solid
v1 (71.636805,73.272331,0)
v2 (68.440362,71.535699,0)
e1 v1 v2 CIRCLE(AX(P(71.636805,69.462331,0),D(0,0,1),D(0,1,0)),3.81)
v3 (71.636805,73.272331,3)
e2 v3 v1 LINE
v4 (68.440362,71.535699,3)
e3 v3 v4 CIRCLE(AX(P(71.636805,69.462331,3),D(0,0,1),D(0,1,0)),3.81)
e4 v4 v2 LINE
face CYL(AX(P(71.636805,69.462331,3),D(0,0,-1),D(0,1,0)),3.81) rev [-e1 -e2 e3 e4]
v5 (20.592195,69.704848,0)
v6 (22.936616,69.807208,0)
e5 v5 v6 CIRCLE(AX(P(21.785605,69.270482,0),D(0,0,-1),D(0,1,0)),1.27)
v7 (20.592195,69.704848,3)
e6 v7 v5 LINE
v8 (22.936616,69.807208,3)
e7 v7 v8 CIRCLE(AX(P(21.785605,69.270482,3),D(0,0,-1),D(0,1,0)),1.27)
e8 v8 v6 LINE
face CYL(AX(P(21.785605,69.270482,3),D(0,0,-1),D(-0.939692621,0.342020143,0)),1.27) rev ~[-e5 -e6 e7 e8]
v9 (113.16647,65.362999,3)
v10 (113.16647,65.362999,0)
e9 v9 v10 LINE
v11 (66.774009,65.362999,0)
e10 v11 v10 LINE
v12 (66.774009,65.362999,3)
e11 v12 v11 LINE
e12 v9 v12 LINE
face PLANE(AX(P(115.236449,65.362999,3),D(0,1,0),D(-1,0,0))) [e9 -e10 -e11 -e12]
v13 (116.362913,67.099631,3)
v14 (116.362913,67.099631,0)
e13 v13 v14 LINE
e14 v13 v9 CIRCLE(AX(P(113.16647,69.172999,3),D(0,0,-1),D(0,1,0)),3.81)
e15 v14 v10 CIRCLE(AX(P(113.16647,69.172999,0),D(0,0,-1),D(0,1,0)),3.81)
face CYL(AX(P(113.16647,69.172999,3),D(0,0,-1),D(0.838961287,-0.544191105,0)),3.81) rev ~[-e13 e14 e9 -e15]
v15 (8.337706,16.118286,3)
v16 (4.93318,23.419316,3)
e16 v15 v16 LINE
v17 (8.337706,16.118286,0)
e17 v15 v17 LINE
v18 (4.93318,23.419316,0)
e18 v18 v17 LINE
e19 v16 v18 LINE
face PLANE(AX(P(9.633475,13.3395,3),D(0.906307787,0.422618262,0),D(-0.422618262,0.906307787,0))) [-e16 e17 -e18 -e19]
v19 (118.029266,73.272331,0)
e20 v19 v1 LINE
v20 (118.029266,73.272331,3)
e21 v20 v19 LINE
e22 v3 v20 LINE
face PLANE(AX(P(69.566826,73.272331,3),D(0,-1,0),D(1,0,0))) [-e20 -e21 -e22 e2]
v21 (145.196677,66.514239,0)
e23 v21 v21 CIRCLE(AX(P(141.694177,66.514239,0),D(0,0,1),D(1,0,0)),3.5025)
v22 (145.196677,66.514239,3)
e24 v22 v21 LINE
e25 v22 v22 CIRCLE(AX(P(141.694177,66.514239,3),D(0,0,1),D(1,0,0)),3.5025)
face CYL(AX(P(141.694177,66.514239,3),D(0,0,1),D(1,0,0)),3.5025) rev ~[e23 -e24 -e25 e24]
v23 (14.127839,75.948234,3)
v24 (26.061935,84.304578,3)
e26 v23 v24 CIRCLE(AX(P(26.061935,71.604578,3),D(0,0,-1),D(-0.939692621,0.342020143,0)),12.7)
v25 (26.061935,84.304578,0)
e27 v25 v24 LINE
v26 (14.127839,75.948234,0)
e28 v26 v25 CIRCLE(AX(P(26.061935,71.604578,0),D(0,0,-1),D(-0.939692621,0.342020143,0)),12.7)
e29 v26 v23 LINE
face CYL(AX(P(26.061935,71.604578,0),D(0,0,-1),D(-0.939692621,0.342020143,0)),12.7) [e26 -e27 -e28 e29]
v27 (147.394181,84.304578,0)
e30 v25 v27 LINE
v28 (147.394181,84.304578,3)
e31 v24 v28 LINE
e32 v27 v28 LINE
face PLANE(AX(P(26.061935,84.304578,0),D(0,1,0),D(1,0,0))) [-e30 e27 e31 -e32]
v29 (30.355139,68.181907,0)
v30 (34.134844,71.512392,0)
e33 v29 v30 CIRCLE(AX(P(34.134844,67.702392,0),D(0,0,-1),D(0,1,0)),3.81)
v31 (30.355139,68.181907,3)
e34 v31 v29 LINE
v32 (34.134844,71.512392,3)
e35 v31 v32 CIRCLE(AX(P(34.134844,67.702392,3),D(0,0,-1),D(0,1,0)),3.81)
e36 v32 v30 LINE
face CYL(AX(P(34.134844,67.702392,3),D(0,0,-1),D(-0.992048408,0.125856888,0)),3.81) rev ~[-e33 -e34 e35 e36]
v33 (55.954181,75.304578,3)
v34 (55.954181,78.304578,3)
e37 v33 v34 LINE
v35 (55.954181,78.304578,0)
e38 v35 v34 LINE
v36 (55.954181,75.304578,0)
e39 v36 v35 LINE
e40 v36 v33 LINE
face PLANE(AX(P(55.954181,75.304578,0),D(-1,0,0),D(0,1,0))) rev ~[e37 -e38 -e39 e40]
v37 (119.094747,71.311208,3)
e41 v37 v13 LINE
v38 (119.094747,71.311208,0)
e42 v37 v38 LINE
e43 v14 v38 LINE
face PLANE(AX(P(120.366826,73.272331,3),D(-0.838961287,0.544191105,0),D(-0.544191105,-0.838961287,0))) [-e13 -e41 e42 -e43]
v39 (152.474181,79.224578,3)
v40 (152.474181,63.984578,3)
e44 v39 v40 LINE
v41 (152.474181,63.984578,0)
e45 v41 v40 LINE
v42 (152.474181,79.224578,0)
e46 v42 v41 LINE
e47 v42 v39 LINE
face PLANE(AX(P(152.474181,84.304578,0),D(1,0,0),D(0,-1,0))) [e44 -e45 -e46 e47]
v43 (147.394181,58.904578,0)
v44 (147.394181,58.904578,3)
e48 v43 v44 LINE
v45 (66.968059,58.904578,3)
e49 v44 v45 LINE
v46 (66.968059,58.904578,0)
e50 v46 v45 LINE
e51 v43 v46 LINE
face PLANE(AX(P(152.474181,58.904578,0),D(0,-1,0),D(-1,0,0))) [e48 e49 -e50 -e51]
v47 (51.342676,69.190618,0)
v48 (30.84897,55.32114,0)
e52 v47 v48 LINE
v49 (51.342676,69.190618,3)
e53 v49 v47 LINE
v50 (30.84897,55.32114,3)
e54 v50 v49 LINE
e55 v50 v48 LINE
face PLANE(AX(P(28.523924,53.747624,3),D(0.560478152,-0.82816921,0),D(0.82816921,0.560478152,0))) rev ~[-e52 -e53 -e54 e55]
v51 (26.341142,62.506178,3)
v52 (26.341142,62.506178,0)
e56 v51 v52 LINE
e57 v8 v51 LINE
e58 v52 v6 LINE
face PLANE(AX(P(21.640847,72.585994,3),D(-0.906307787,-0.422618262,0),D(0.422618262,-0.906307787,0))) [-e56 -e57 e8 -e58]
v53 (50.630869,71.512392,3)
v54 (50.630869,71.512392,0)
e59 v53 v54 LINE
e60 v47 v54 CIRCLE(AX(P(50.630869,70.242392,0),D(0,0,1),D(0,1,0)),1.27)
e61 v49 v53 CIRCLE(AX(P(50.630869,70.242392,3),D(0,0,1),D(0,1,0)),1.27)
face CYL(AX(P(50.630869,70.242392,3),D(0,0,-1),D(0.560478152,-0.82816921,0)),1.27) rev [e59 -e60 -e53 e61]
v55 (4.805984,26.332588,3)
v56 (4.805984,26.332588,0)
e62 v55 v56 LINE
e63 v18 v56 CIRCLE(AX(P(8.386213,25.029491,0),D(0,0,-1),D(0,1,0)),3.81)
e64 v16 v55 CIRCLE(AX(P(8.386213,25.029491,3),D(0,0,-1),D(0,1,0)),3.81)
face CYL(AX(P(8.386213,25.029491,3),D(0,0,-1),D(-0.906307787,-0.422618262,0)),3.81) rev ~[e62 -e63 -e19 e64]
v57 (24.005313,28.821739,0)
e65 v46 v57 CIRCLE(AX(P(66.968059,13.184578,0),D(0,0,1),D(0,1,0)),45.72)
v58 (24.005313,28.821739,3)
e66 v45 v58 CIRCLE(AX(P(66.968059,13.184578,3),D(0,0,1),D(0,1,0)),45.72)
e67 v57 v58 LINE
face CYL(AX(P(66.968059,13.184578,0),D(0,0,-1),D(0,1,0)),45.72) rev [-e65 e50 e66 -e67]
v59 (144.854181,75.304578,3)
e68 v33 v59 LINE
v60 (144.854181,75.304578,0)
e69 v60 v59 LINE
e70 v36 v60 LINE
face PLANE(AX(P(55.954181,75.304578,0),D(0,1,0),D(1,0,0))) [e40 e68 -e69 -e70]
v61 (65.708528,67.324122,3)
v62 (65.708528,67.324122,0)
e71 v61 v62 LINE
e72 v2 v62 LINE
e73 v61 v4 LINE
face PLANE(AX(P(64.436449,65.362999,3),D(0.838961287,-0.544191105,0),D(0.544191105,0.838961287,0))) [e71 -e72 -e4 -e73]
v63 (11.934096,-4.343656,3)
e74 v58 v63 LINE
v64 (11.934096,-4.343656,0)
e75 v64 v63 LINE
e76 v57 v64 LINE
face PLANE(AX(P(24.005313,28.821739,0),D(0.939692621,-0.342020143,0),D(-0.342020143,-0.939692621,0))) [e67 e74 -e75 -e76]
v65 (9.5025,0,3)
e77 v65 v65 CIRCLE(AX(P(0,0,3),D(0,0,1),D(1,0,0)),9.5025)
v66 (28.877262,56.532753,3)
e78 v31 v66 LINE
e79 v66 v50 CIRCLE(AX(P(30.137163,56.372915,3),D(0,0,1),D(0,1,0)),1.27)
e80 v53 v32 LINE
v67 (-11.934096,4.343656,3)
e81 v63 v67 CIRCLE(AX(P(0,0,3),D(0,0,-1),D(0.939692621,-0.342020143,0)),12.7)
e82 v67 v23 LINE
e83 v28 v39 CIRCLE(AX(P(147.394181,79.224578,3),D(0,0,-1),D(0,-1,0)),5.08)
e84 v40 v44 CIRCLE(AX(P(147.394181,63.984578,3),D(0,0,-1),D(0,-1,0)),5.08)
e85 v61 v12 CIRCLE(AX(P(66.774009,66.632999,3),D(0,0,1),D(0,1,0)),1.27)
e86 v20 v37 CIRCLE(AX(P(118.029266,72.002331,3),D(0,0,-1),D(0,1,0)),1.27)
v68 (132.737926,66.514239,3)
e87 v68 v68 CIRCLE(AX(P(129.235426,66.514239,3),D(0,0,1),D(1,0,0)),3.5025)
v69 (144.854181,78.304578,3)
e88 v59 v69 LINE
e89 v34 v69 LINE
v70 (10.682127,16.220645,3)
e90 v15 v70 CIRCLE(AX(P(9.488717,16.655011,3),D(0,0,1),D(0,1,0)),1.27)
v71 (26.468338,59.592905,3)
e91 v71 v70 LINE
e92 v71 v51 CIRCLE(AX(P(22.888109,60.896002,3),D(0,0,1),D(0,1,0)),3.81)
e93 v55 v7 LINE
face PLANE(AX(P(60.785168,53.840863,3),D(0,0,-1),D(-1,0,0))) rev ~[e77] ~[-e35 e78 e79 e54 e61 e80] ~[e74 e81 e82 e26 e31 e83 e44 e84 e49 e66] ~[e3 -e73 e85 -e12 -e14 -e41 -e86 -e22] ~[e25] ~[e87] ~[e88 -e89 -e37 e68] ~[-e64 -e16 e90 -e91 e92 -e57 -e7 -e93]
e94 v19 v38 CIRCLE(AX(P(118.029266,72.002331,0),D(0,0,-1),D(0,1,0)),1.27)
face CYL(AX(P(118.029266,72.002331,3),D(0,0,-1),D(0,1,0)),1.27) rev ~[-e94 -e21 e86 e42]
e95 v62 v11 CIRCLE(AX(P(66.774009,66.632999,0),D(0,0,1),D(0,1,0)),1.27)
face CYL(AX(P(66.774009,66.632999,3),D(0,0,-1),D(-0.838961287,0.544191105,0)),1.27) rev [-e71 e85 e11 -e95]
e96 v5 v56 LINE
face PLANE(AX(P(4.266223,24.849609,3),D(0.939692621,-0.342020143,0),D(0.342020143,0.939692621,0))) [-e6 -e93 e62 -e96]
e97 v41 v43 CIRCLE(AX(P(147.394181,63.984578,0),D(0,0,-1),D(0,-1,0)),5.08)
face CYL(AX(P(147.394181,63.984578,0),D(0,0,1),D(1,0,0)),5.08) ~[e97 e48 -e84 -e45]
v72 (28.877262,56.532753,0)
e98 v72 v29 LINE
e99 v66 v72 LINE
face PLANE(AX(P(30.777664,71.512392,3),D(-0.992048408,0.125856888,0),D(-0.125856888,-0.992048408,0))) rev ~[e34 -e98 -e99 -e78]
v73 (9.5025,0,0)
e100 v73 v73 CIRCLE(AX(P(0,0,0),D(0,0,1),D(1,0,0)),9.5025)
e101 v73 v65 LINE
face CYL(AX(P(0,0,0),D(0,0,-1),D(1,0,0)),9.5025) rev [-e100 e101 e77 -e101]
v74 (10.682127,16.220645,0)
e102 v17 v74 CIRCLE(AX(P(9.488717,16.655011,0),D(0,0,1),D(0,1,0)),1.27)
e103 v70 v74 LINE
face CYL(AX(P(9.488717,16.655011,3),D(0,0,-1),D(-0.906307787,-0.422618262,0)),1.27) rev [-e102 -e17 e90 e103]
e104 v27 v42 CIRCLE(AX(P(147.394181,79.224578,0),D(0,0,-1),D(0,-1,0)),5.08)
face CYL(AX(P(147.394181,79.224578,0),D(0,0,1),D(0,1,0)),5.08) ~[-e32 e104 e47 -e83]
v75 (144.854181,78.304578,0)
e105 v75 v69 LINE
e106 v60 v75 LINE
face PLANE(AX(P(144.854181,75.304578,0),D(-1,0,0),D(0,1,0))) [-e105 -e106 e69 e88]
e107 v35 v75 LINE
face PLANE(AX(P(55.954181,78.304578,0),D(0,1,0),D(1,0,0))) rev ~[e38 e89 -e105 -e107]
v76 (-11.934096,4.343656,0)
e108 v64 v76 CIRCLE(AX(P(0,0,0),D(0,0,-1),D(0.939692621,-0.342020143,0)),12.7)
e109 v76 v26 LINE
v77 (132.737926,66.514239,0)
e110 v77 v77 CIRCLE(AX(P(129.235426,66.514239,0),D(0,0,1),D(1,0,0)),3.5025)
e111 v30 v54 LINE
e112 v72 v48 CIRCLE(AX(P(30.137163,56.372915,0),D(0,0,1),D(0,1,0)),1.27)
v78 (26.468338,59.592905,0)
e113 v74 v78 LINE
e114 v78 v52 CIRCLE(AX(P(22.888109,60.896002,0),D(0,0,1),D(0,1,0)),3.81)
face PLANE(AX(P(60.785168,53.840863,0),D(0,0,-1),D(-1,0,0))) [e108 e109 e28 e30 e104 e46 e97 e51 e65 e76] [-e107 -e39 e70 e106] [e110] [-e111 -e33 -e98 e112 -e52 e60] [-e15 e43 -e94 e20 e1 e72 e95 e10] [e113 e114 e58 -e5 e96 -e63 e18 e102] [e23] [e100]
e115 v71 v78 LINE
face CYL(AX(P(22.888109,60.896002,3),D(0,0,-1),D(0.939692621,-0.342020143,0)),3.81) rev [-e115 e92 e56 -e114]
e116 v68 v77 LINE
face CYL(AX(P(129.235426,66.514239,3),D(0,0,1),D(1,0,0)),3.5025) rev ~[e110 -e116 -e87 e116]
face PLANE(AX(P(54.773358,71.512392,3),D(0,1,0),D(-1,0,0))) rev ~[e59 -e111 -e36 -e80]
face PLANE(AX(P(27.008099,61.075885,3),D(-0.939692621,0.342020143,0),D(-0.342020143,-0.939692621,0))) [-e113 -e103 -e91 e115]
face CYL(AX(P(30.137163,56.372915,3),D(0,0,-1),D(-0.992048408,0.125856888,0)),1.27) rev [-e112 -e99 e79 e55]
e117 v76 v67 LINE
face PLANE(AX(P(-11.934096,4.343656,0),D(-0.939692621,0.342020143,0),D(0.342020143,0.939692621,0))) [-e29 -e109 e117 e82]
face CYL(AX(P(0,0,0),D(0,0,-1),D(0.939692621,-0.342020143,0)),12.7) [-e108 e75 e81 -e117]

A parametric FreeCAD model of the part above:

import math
import FreeCAD as App
import Part
import Sketcher
Q = App.Units.Quantity


def edges_at(feature, points):
    """Names of the edges that pass closest to the given points."""
    edges = feature.Shape.Edges
    near = lambda p: min(range(len(edges)), key=lambda i: edges[i].distToShape(Part.Vertex(*p))[0])
    return sorted({f"Edge{near(p) + 1}" for p in points})


def add_polygon(sketch, points):
    """Adds a closed chain of lines whose ends are joined by coincident constraints."""
    first, n = sketch.GeometryCount, len(points)
    for a, b in zip(points, points[1:] + points[:1]):
        sketch.addGeometry(Part.LineSegment(App.Vector(*a, 0), App.Vector(*b, 0)), False)
    for i in range(n):
        sketch.addConstraint(Sketcher.Constraint("Coincident", first + i, 2, first + (i + 1) % n, 1))

doc = App.newDocument("Part")
body = doc.addObject("PartDesign::Body", "Body")

# Sketch on XY plane
sketch1 = body.newObject("Sketcher::SketchObject", "Sketch")
sketch1.AttachmentSupport = (doc.getObject("XY_Plane"), [""])
sketch1.MapMode = "FlatFace"
sketch1.addGeometry(Part.LineSegment(App.Vector(14.1, 75.9, 0), App.Vector(-11.9, 4.3, 0)), False)  # 0
sketch1.addGeometry(Part.ArcOfCircle(Part.Circle(App.Vector(0, 0, 0), App.Vector(0, 0, 1), 12.7), math.radians(160), math.radians(340)), False)  # 1
sketch1.addGeometry(Part.LineSegment(App.Vector(11.9, -4.3, 0), App.Vector(24, 28.8, 0)), False)  # 2
sketch1.addGeometry(Part.ArcOfCircle(Part.Circle(App.Vector(67, 13.2, 0), App.Vector(0, 0, 1), 45.7), math.radians(90), math.radians(160)), False)  # 3
sketch1.addGeometry(Part.LineSegment(App.Vector(67, 58.9, 0), App.Vector(152.5, 58.9, 0)), False)  # 4
sketch1.addGeometry(Part.LineSegment(App.Vector(152.5, 58.9, 0), App.Vector(152.5, 84.3, 0)), False)  # 5
sketch1.addGeometry(Part.LineSegment(App.Vector(152.5, 84.3, 0), App.Vector(26.1, 84.3, 0)), False)  # 6
sketch1.addGeometry(Part.ArcOfCircle(Part.Circle(App.Vector(26.1, 71.6, 0), App.Vector(0, 0, 1), 12.7), math.radians(90), math.radians(160)), False)  # 7
sketch1.addGeometry(Part.Circle(App.Vector(0, 0, 0), App.Vector(0, 0, 1), 9.5), False)  # 8
add_polygon(sketch1, [(56, 75.3), (56, 78.3), (144.9, 78.3), (144.9, 75.3)])  # lines 9-12
sketch1.addConstraint([
    Sketcher.Constraint("Tangent", 0, 2, 1, 1),
    Sketcher.Constraint("Tangent", 1, 2, 2, 1),
    Sketcher.Constraint("Tangent", 2, 2, 3, 2),
    Sketcher.Constraint("Tangent", 3, 1, 4, 1),
    Sketcher.Constraint("Coincident", 4, 2, 5, 1),
    Sketcher.Constraint("Coincident", 5, 2, 6, 1),
    Sketcher.Constraint("Tangent", 6, 2, 7, 1),
    Sketcher.Constraint("Tangent", 7, 2, 0, 1),
    Sketcher.Constraint("Horizontal", 4),
    Sketcher.Constraint("Vertical", 5),
    Sketcher.Constraint("Horizontal", 6),
    Sketcher.Constraint("Vertical", 9),
    Sketcher.Constraint("Horizontal", 10),
    Sketcher.Constraint("Vertical", 11),
    Sketcher.Constraint("Horizontal", 12),
    Sketcher.Constraint("Coincident", 1, 3, -1, 1),
    Sketcher.Constraint("Coincident", 8, 3, -1, 1),
    Sketcher.Constraint("Equal", 1, 7),
    Sketcher.Constraint("Parallel", 0, 2),
    Sketcher.Constraint("Radius", 1, Q("0.5 in")),
    Sketcher.Constraint("Radius", 3, Q("1.8 in")),
    Sketcher.Constraint("DistanceY", 5, 1, 5, 2, Q("1 in")),
    Sketcher.Constraint("Distance", 0, Q("3 in")),
    Sketcher.Constraint("DistanceX", 10, 1, 10, 2, Q("3.5 in")),
    Sketcher.Constraint("Angle", 0, Q("-110 deg")),
    Sketcher.Constraint("DistanceX", 10, 2, 5, 2, Q("0.3 in")),
    Sketcher.Constraint("Diameter", 8, 19.005),
    Sketcher.Constraint("DistanceY", 9, 1, 9, 2, 3.0),
    Sketcher.Constraint("DistanceX", 4, 1, 4, 2, 85.506122),
    Sketcher.Constraint("DistanceY", 3, 1, 9, 2, 19.4),
])
pad1 = body.newObject("PartDesign::Pad", "Pad")
pad1.Profile = sketch1
pad1.Length = 3

# Sketch on XY plane
sketch2 = body.newObject("Sketcher::SketchObject", "Sketch001")
sketch2.AttachmentSupport = (doc.getObject("XY_Plane"), [""])
sketch2.MapMode = "FlatFace"
sketch2.AttachmentOffset = App.Placement(App.Vector(0, 0, 3), App.Rotation())
add_polygon(sketch2, [(10, 13), (27, 61), (22, 73), (4, 25)])  # lines 0-3
sketch2.addConstraint([
    Sketcher.Constraint("Parallel", 0, 2),
    Sketcher.Constraint("Parallel", 1, 3),
    Sketcher.Constraint("Distance", 0, Q("2 in")),
    Sketcher.Constraint("Angle", 0, Q("70 deg")),
    Sketcher.Constraint("Angle", 1, Q("115 deg")),
    Sketcher.Constraint("Distance", 1, Q("0.5 in")),
    Sketcher.Constraint("DistanceX", -1, 1, 0, 2, 27.008099),
    Sketcher.Constraint("DistanceY", -1, 1, 3, 2, 13.3395),
])
pocket1 = body.newObject("PartDesign::Pocket", "Pocket")
pocket1.Profile = sketch2
pocket1.Type = "ThroughAll"

# Sketch on XY plane
sketch3 = body.newObject("Sketcher::SketchObject", "Sketch002")
sketch3.AttachmentSupport = (doc.getObject("XY_Plane"), [""])
sketch3.MapMode = "FlatFace"
sketch3.AttachmentOffset = App.Placement(App.Vector(0, 0, 3), App.Rotation())
add_polygon(sketch3, [(31, 72), (29, 54), (55, 72)])  # lines 0-2
add_polygon(sketch3, [(70, 73), (64, 65), (115, 65), (120, 73)])  # lines 3-6
sketch3.addConstraint([
    Sketcher.Constraint("Horizontal", 2),
    Sketcher.Constraint("Horizontal", 4),
    Sketcher.Constraint("Horizontal", 6),
    Sketcher.Constraint("Parallel", 3, 5),
    Sketcher.Constraint("DistanceX", 4, 1, 4, 2, Q("2 in")),
    Sketcher.Constraint("DistanceY", -1, 1, 3, 2, 65.362999),
    Sketcher.Constraint("DistanceX", 0, 2, 5, 2, 91.842902),
    Sketcher.Constraint("Distance", 0, 17.907159),
    Sketcher.Constraint("Distance", 3, 9.427529),
    Sketcher.Constraint("DistanceX", 2, 2, 2, 1, 23.995695),
    Sketcher.Constraint("DistanceX", -1, 1, 1, 2, 54.773358),
    Sketcher.Constraint("DistanceX", -1, 1, 3, 2, 64.436449),
    Sketcher.Constraint("DistanceY", -1, 1, 5, 2, 73.272331),
    Sketcher.Constraint("DistanceY", 1, 2, 5, 2, 1.759939),
])
pocket2 = body.newObject("PartDesign::Pocket", "Pocket001")
pocket2.Profile = sketch3
pocket2.Length = Q("5 in")
doc.recompute()

fillet = body.newObject("PartDesign::Fillet", "Fillet")
fillet.Base = (pocket2, edges_at(pocket2, [
    (27.008, 61.076, 1.5),
    (4.266, 24.85, 1.5),
    (30.778, 71.512, 1.5),
    (115.236, 65.363, 1.5),
    (69.567, 73.272, 1.5),
]))
fillet.Radius = Q("0.15 in")
doc.recompute()

fillet2 = body.newObject("PartDesign::Fillet", "Fillet001")
fillet2.Base = (fillet, edges_at(fillet, [
    (9.633, 13.339, 1.5),
    (21.641, 72.586, 1.5),
    (54.773, 71.512, 1.5),
    (28.524, 53.748, 1.5),
    (64.436, 65.363, 1.5),
    (120.367, 73.272, 1.5),
]))
fillet2.Radius = Q("0.05 in")
doc.recompute()

fillet3 = body.newObject("PartDesign::Fillet", "Fillet002")
fillet3.Base = (fillet2, edges_at(fillet2, [(152.474, 84.305, 1.5), (152.474, 58.905, 1.5)]))
fillet3.Radius = Q("0.2 in")

# Sketch on XY plane
sketch4 = body.newObject("Sketcher::SketchObject", "Sketch003")
sketch4.AttachmentSupport = (doc.getObject("XY_Plane"), [""])
sketch4.MapMode = "FlatFace"
sketch4.AttachmentOffset = App.Placement(App.Vector(0, 0, 3), App.Rotation())
sketch4.addGeometry([
    Part.Circle(App.Vector(141.7, 66.5, 0), App.Vector(0, 0, 1), 3.5),
    Part.Circle(App.Vector(129.2, 66.5, 0), App.Vector(0, 0, 1), 3.5),
], False)
sketch4.addConstraint([
    Sketcher.Constraint("Equal", 0, 1),
    Sketcher.Constraint("Horizontal", 0, 3, 1, 3),
    Sketcher.Constraint("Diameter", 0, 7.005),
    Sketcher.Constraint("DistanceY", -1, 1, 0, 3, 66.514239),
    Sketcher.Constraint("DistanceX", 1, 3, 0, 3, 12.458752),
    Sketcher.Constraint("DistanceX", -1, 1, 0, 3, 141.694177),
])
pocket3 = body.newObject("PartDesign::Pocket", "Pocket002")
pocket3.Profile = sketch4
pocket3.Length = Q("0.63 in")

doc.recompute()
